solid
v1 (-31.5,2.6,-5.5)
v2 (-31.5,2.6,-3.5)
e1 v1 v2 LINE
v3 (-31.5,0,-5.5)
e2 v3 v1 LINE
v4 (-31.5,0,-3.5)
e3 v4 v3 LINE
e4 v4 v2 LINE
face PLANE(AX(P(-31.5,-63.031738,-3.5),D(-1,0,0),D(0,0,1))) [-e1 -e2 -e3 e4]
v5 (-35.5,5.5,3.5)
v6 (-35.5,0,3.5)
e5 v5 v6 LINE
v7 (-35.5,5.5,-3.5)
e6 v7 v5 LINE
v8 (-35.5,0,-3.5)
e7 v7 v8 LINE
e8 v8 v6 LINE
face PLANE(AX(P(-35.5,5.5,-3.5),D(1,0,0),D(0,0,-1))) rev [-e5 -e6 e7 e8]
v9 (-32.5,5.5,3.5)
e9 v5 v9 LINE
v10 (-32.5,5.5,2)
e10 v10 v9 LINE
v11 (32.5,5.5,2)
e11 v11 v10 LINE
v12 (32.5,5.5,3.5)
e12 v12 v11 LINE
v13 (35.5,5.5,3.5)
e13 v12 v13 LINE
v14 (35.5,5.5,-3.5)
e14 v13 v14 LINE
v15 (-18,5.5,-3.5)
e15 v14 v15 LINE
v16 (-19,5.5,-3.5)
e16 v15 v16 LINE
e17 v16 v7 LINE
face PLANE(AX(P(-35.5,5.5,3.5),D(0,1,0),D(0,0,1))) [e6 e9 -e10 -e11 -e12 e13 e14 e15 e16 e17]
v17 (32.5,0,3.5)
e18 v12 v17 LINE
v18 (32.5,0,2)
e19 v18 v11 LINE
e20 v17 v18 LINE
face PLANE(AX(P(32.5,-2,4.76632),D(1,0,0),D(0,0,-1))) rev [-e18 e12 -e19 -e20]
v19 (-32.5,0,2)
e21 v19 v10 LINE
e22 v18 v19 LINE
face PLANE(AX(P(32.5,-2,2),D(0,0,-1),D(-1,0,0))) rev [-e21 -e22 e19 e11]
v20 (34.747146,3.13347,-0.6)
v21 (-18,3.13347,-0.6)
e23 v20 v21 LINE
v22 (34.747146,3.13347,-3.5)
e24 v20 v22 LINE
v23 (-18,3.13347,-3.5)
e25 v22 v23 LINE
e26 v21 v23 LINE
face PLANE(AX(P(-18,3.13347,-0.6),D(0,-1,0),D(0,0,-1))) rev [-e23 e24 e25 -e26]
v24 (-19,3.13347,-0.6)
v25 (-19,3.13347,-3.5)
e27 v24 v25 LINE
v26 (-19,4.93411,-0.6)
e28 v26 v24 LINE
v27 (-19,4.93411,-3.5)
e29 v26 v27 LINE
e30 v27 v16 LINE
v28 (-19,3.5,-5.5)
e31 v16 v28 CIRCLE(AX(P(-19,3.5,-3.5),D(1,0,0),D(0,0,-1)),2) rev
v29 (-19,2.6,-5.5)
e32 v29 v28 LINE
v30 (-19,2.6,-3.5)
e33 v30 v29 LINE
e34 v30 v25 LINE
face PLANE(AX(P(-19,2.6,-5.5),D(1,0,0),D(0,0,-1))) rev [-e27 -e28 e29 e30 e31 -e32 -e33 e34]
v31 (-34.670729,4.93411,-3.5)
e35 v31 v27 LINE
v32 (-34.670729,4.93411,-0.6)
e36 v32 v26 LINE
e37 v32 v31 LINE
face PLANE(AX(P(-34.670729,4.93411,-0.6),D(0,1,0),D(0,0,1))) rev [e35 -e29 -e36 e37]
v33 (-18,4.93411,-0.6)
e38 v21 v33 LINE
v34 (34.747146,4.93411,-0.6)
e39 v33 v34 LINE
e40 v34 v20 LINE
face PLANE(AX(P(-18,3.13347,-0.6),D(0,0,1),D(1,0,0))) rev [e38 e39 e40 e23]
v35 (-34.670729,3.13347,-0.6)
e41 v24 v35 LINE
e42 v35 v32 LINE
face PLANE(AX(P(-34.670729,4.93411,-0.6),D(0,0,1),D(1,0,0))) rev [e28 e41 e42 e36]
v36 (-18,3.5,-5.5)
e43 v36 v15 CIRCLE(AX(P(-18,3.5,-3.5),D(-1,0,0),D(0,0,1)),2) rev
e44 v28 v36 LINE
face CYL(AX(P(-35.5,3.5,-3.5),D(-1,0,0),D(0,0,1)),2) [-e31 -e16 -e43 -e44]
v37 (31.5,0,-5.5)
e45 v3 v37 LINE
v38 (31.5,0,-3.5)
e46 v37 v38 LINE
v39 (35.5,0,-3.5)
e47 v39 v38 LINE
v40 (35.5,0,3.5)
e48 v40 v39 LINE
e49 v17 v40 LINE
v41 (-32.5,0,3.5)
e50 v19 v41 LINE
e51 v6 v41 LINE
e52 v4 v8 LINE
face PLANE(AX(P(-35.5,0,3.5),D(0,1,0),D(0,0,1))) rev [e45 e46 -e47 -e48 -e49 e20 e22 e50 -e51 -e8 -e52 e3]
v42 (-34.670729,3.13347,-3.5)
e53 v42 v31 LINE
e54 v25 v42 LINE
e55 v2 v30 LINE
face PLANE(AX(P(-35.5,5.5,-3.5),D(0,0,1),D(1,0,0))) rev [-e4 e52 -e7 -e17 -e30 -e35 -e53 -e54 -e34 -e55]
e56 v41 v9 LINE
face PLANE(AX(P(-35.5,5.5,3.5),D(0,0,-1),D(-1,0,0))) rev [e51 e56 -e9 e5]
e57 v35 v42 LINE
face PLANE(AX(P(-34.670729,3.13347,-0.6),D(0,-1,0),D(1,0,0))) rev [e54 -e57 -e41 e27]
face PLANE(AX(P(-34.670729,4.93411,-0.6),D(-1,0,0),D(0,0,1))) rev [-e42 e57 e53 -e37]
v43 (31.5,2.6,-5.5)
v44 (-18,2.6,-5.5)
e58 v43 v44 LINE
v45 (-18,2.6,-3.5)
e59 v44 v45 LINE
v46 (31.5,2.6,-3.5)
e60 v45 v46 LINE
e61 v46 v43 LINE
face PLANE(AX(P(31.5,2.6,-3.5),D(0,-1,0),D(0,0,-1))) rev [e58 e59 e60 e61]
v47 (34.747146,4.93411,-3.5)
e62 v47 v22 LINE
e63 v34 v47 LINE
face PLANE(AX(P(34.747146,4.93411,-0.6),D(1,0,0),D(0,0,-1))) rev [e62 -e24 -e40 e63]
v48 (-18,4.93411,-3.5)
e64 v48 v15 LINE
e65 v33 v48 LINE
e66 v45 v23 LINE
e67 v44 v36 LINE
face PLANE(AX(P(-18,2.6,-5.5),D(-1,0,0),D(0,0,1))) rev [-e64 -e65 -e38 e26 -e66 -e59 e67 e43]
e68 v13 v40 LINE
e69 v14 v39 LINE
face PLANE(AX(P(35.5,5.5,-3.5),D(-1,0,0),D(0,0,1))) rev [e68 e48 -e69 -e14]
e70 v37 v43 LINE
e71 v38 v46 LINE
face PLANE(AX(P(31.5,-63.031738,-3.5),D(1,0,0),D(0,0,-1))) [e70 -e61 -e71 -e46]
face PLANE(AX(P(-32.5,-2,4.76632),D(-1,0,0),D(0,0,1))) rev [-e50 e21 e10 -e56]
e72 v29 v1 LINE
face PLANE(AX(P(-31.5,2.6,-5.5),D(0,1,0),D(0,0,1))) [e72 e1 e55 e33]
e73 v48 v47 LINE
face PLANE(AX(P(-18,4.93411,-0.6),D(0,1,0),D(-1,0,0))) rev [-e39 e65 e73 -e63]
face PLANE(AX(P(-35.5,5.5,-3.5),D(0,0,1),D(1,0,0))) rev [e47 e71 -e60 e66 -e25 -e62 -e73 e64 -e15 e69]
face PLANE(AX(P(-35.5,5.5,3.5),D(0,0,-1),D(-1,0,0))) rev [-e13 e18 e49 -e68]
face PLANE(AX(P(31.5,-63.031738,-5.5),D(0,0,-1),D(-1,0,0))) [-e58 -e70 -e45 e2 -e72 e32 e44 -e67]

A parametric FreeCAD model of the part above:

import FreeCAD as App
import Part
import Sketcher
Q = App.Units.Quantity


def edges_at(feature, points):
    """Names of the edges that pass closest to the given points."""
    edges = feature.Shape.Edges
    near = lambda p: min(range(len(edges)), key=lambda i: edges[i].distToShape(Part.Vertex(*p))[0])
    return sorted({f"Edge{near(p) + 1}" for p in points})


def add_polygon(sketch, points):
    """Adds a closed chain of lines whose ends are joined by coincident constraints."""
    first, n = sketch.GeometryCount, len(points)
    for a, b in zip(points, points[1:] + points[:1]):
        sketch.addGeometry(Part.LineSegment(App.Vector(*a, 0), App.Vector(*b, 0)), False)
    for i in range(n):
        sketch.addConstraint(Sketcher.Constraint("Coincident", first + i, 2, first + (i + 1) % n, 1))

doc = App.newDocument("Part")
body = doc.addObject("PartDesign::Body", "Body")

sketch1 = body.newObject("Sketcher::SketchObject", "Sketch")
sketch1.AttachmentSupport = (doc.getObject("XZ_Plane"), [""])
sketch1.MapMode = "FlatFace"
add_polygon(sketch1, [(-36, -4), (-36, 4), (36, 4), (36, -4)])
sketch1.addConstraint([
    Sketcher.Constraint("Vertical", 0),
    Sketcher.Constraint("Horizontal", 1),
    Sketcher.Constraint("Vertical", 2),
    Sketcher.Constraint("Horizontal", 3),
    Sketcher.Constraint("Symmetric", 0, 2, 2, 2, -1, 1),
    Sketcher.Constraint("DistanceX", 1, 1, 1, 2, Q("71 mm")),
    Sketcher.Constraint("DistanceY", 0, 1, 0, 2, Q("7 mm")),
])
pad1 = body.newObject("PartDesign::Pad", "Pad")
pad1.Profile = sketch1
pad1.Length = 5.5
pad1.Reversed = True

sketch2 = body.newObject("Sketcher::SketchObject", "Sketch001")
sketch2.AttachmentSupport = (doc.getObject("XZ_Plane"), [""])
sketch2.MapMode = "FlatFace"
sketch2.AttachmentOffset = App.Placement(App.Vector(0, 0, -5.5), App.Rotation())
add_polygon(sketch2, [(32.5, 4.8), (32.5, 2), (-32.5, 2), (-32.5, 4.8)])
sketch2.addConstraint([
    Sketcher.Constraint("Vertical", 0),
    Sketcher.Constraint("Horizontal", 1),
    Sketcher.Constraint("Vertical", 2),
    Sketcher.Constraint("Horizontal", 3),
    Sketcher.Constraint("DistanceX", 1, 2, 1, 1, Q("65 mm")),
    Sketcher.Constraint("DistanceY", -1, 1, 0, 2, Q("2 mm")),
    Sketcher.Constraint("DistanceX", -1, 1, 0, 2, Q("32.5 mm")),
    Sketcher.Constraint("DistanceY", 0, 2, 0, 1, Q("2.76632 mm")),
])
pocket1 = body.newObject("PartDesign::Pocket", "Pocket")
pocket1.Profile = sketch2
pocket1.Length = 7.5
pocket1.Reversed = True

sketch3 = body.newObject("Sketcher::SketchObject", "Sketch002")
sketch3.AttachmentSupport = (doc.getObject("XZ_Plane"), [""])
sketch3.MapMode = "FlatFace"
sketch3.AttachmentOffset = App.Placement(App.Vector(0, 0, -5.5), App.Rotation())
add_polygon(sketch3, [(31.5, -3.5), (31.5, -5.5), (-31.5, -5.5), (-31.5, -3.5)])
sketch3.addConstraint([
    Sketcher.Constraint("Vertical", 0),
    Sketcher.Constraint("Horizontal", 1),
    Sketcher.Constraint("Vertical", 2),
    Sketcher.Constraint("Horizontal", 3),
    Sketcher.Constraint("DistanceX", 1, 2, 1, 1, Q("63 mm")),
    Sketcher.Constraint("DistanceY", 0, 2, 0, 1, Q("2 mm")),
    Sketcher.Constraint("DistanceX", -1, 1, 0, 2, Q("31.5 mm")),
    Sketcher.Constraint("DistanceY", 0, 2, -1, 1, Q("5.5 mm")),
])
pad2 = body.newObject("PartDesign::Pad", "Pad001")
pad2.Profile = sketch3
pad2.Length = 5.5

sketch4 = body.newObject("Sketcher::SketchObject", "Sketch003")
sketch4.AttachmentSupport = (doc.getObject("XZ_Plane"), [""])
sketch4.MapMode = "FlatFace"
sketch4.AttachmentOffset = App.Placement(App.Vector(0, 0, -5.5), App.Rotation())
add_polygon(sketch4, [(31.5, -3.5), (31.5, -5.5), (-18, -5.5), (-18, -3.5)])
add_polygon(sketch4, [(-19, -3.5), (-19, -5.5), (-31.5, -5.5), (-31.5, -3.5)])
sketch4.addConstraint([
    Sketcher.Constraint("Vertical", 0),
    Sketcher.Constraint("Horizontal", 1),
    Sketcher.Constraint("Vertical", 2),
    Sketcher.Constraint("Horizontal", 3),
    Sketcher.Constraint("Vertical", 4),
    Sketcher.Constraint("Horizontal", 5),
    Sketcher.Constraint("Vertical", 6),
    Sketcher.Constraint("Horizontal", 7),
    Sketcher.Constraint("Symmetric", 0, 2, 5, 2, -2),
    Sketcher.Constraint("Horizontal", 3, 2, 6, 2),
    Sketcher.Constraint("DistanceY", 0, 2, 0, 1, Q("2 mm")),
    Sketcher.Constraint("DistanceX", 1, 2, 1, 1, Q("49.5 mm")),
    Sketcher.Constraint("DistanceX", 5, 2, 5, 1, Q("12.5 mm")),
    Sketcher.Constraint("DistanceX", 1, 2, -1, 1, Q("18 mm")),
    Sketcher.Constraint("DistanceY", 0, 2, -1, 1, Q("5.5 mm")),
])
pocket2 = body.newObject("PartDesign::Pocket", "Pocket001")
pocket2.Profile = sketch4
pocket2.Length = 2.9
pocket2.Reversed = True
doc.recompute()

fillet = body.newObject("PartDesign::Fillet", "Fillet")
fillet.Base = (pocket2, edges_at(pocket2, [(-18.5, 5.5, -5.5)]))
fillet.Radius = 2

sketch5 = body.newObject("Sketcher::SketchObject", "Sketch004")
sketch5.AttachmentSupport = (doc.getObject("XY_Plane"), [""])
sketch5.MapMode = "FlatFace"
sketch5.AttachmentOffset = App.Placement(App.Vector(0, 0, -3.5), App.Rotation())
add_polygon(sketch5, [(-19, 4.9), (-19, 3.1), (-34.7, 3.1), (-34.7, 4.9)])
add_polygon(sketch5, [(34.7, 4.9), (34.7, 3.1), (-18, 3.1), (-18, 4.9)])
sketch5.addConstraint([
    Sketcher.Constraint("Vertical", 0),
    Sketcher.Constraint("Horizontal", 1),
    Sketcher.Constraint("Vertical", 2),
    Sketcher.Constraint("Horizontal", 3),
    Sketcher.Constraint("Vertical", 4),
    Sketcher.Constraint("Horizontal", 5),
    Sketcher.Constraint("Vertical", 6),
    Sketcher.Constraint("Horizontal", 7),
    Sketcher.Constraint("Horizontal", 1, 2, 4, 2),
    Sketcher.Constraint("Horizontal", 3, 2, 6, 2),
    Sketcher.Constraint("DistanceX", 0, 2, -1, 1, Q("19 mm")),
    Sketcher.Constraint("DistanceX", 5, 2, -1, 1, Q("18 mm")),
    Sketcher.Constraint("DistanceX", 1, 2, 1, 1, Q("15.670729 mm")),
    Sketcher.Constraint("DistanceY", 0, 2, 0, 1, Q("1.80064 mm")),
    Sketcher.Constraint("DistanceX", 5, 2, 5, 1, Q("52.747146 mm")),
    Sketcher.Constraint("DistanceY", -1, 1, 0, 2, Q("3.13347 mm")),
])
pocket3 = body.newObject("PartDesign::Pocket", "Pocket002")
pocket3.Profile = sketch5
pocket3.Length = 2.9
pocket3.Reversed = True

doc.recompute()
